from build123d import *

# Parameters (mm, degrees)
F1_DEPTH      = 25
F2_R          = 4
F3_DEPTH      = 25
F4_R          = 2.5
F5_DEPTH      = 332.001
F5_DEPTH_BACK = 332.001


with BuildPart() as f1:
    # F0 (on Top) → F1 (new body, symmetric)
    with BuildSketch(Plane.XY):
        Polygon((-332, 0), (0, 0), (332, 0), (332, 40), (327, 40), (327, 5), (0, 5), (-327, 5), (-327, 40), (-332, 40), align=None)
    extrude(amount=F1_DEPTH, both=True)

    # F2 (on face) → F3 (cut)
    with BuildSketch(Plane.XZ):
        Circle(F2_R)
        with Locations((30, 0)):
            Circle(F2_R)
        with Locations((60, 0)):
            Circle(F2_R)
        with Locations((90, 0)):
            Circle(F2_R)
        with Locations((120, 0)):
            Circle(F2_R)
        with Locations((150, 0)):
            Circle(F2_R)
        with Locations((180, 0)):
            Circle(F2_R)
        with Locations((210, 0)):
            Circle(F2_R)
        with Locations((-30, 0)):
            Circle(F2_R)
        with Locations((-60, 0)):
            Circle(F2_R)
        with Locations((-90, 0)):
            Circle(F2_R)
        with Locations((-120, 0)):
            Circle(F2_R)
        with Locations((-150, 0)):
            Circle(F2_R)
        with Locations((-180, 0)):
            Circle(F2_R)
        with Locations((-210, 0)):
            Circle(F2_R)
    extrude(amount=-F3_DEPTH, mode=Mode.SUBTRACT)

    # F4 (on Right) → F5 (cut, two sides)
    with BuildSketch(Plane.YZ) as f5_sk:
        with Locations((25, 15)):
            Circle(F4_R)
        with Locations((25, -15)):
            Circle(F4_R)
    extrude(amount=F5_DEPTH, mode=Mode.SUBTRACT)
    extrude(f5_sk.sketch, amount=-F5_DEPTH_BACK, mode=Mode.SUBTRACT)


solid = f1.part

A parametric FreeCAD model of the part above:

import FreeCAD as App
import Part
import Sketcher
from FreeCAD import Vector
Q = App.Units.Quantity


def add_polygon(sketch, points):
    """Adds a closed chain of lines whose ends are joined by coincident constraints."""
    first, n = sketch.GeometryCount, len(points)
    for a, b in zip(points, points[1:] + points[:1]):
        sketch.addGeometry(Part.LineSegment(App.Vector(*a, 0), App.Vector(*b, 0)), False)
    for i in range(n):
        sketch.addConstraint(Sketcher.Constraint("Coincident", first + i, 2, first + (i + 1) % n, 1))

doc = App.newDocument("Part")
body = doc.addObject("PartDesign::Body", "Body")

sketch1 = doc.addObject("Sketcher::SketchObject", "Sketch")
body.addObject(sketch1)
sketch1.AttachmentSupport = (doc.XY_Plane, [""])
sketch1.MapMode = "FlatFace"
add_polygon(sketch1, [(-332, 0), (332, 0), (332, 40), (327, 40), (327, 5), (-327, 5), (-327, 40), (-332, 40)])
sketch1.addConstraint(Sketcher.Constraint("Horizontal", 0))
sketch1.addConstraint(Sketcher.Constraint("Vertical", 1))
sketch1.addConstraint(Sketcher.Constraint("Horizontal", 2))
sketch1.addConstraint(Sketcher.Constraint("Vertical", 3))
sketch1.addConstraint(Sketcher.Constraint("Horizontal", 4))
sketch1.addConstraint(Sketcher.Constraint("Vertical", 5))
sketch1.addConstraint(Sketcher.Constraint("Horizontal", 6))
sketch1.addConstraint(Sketcher.Constraint("Vertical", 7))
sketch1.addConstraint(Sketcher.Constraint("Symmetric", 0, 2, 7, 2, -1, 1))
sketch1.addConstraint(Sketcher.Constraint("Symmetric", 2, 2, 5, 2, -2))
sketch1.addConstraint(Sketcher.Constraint("DistanceX", 0, 1, 0, 2, Q("664 mm")))
sketch1.addConstraint(Sketcher.Constraint("DistanceX", 2, 2, 2, 1, Q("5 mm")))
sketch1.addConstraint(Sketcher.Constraint("DistanceY", 1, 1, 1, 2, Q("40 mm")))
sketch1.addConstraint(Sketcher.Constraint("DistanceY", 3, 2, 3, 1, Q("35 mm")))
pad1 = doc.addObject("PartDesign::Pad", "Pad")
body.addObject(pad1)
pad1.Profile = sketch1
pad1.Length = 50
pad1.Midplane = True

sketch2 = doc.addObject("Sketcher::SketchObject", "Sketch001")
body.addObject(sketch2)
sketch2.AttachmentSupport = (doc.XZ_Plane, [""])
sketch2.MapMode = "FlatFace"
sketch2.addGeometry(Part.Circle(Vector(0, 0, 0), Vector(0, 0, 1), 4), False)
sketch2.addGeometry(Part.Circle(Vector(30, 0, 0), Vector(0, 0, 1), 4), False)
sketch2.addGeometry(Part.Circle(Vector(60, 0, 0), Vector(0, 0, 1), 4), False)
sketch2.addGeometry(Part.Circle(Vector(90, 0, 0), Vector(0, 0, 1), 4), False)
sketch2.addGeometry(Part.Circle(Vector(120, 0, 0), Vector(0, 0, 1), 4), False)
sketch2.addGeometry(Part.Circle(Vector(150, 0, 0), Vector(0, 0, 1), 4), False)
sketch2.addGeometry(Part.Circle(Vector(180, 0, 0), Vector(0, 0, 1), 4), False)
sketch2.addGeometry(Part.Circle(Vector(210, 0, 0), Vector(0, 0, 1), 4), False)
sketch2.addGeometry(Part.Circle(Vector(-30, 0, 0), Vector(0, 0, 1), 4), False)
sketch2.addGeometry(Part.Circle(Vector(-60, 0, 0), Vector(0, 0, 1), 4), False)
sketch2.addGeometry(Part.Circle(Vector(-90, 0, 0), Vector(0, 0, 1), 4), False)
sketch2.addGeometry(Part.Circle(Vector(-120, 0, 0), Vector(0, 0, 1), 4), False)
sketch2.addGeometry(Part.Circle(Vector(-150, 0, 0), Vector(0, 0, 1), 4), False)
sketch2.addGeometry(Part.Circle(Vector(-180, 0, 0), Vector(0, 0, 1), 4), False)
sketch2.addGeometry(Part.Circle(Vector(-210, 0, 0), Vector(0, 0, 1), 4), False)
sketch2.addConstraint(Sketcher.Constraint("Coincident", 0, 3, -1, 1))
sketch2.addConstraint(Sketcher.Constraint("Equal", 0, 1))
sketch2.addConstraint(Sketcher.Constraint("Equal", 1, 2))
sketch2.addConstraint(Sketcher.Constraint("Equal", 2, 3))
sketch2.addConstraint(Sketcher.Constraint("Equal", 3, 4))
sketch2.addConstraint(Sketcher.Constraint("Equal", 4, 5))
sketch2.addConstraint(Sketcher.Constraint("Equal", 5, 6))
sketch2.addConstraint(Sketcher.Constraint("Equal", 6, 7))
sketch2.addConstraint(Sketcher.Constraint("Equal", 7, 8))
sketch2.addConstraint(Sketcher.Constraint("Equal", 8, 9))
sketch2.addConstraint(Sketcher.Constraint("Equal", 9, 10))
sketch2.addConstraint(Sketcher.Constraint("Equal", 10, 11))
sketch2.addConstraint(Sketcher.Constraint("Equal", 11, 12))
sketch2.addConstraint(Sketcher.Constraint("Equal", 12, 13))
sketch2.addConstraint(Sketcher.Constraint("Equal", 13, 14))
sketch2.addConstraint(Sketcher.Constraint("Symmetric", 1, 3, 8, 3, -1, 1))
sketch2.addConstraint(Sketcher.Constraint("Symmetric", 2, 3, 9, 3, -1, 1))
sketch2.addConstraint(Sketcher.Constraint("Symmetric", 3, 3, 10, 3, -1, 1))
sketch2.addConstraint(Sketcher.Constraint("Symmetric", 4, 3, 11, 3, -1, 1))
sketch2.addConstraint(Sketcher.Constraint("Symmetric", 5, 3, 12, 3, -1, 1))
sketch2.addConstraint(Sketcher.Constraint("Symmetric", 6, 3, 13, 3, -1, 1))
sketch2.addConstraint(Sketcher.Constraint("Symmetric", 7, 3, 14, 3, -1, 1))
sketch2.addConstraint(Sketcher.Constraint("PointOnObject", 1, 3, -1))
sketch2.addConstraint(Sketcher.Constraint("PointOnObject", 2, 3, -1))
sketch2.addConstraint(Sketcher.Constraint("PointOnObject", 3, 3, -1))
sketch2.addConstraint(Sketcher.Constraint("PointOnObject", 4, 3, -1))
sketch2.addConstraint(Sketcher.Constraint("PointOnObject", 5, 3, -1))
sketch2.addConstraint(Sketcher.Constraint("PointOnObject", 6, 3, -1))
sketch2.addConstraint(Sketcher.Constraint("PointOnObject", 7, 3, -1))
sketch2.addConstraint(Sketcher.Constraint("Diameter", 0, Q("8 mm")))
sketch2.addConstraint(Sketcher.Constraint("DistanceX", -1, 1, 1, 3, Q("30 mm")))
sketch2.addConstraint(Sketcher.Constraint("DistanceX", -1, 1, 2, 3, Q("60 mm")))
sketch2.addConstraint(Sketcher.Constraint("DistanceX", -1, 1, 3, 3, Q("90 mm")))
sketch2.addConstraint(Sketcher.Constraint("DistanceX", -1, 1, 4, 3, Q("120 mm")))
sketch2.addConstraint(Sketcher.Constraint("DistanceX", -1, 1, 5, 3, Q("150 mm")))
sketch2.addConstraint(Sketcher.Constraint("DistanceX", -1, 1, 6, 3, Q("180 mm")))
sketch2.addConstraint(Sketcher.Constraint("DistanceX", -1, 1, 7, 3, Q("210 mm")))
pocket1 = doc.addObject("PartDesign::Pocket", "Pocket")
body.addObject(pocket1)
pocket1.Profile = sketch2
pocket1.Length = 25

sketch3 = doc.addObject("Sketcher::SketchObject", "Sketch002")
body.addObject(sketch3)
sketch3.AttachmentSupport = (doc.YZ_Plane, [""])
sketch3.MapMode = "FlatFace"
sketch3.addGeometry(Part.Circle(Vector(25, 15, 0), Vector(0, 0, 1), 2.5), False)
sketch3.addGeometry(Part.Circle(Vector(25, -15, 0), Vector(0, 0, 1), 2.5), False)
sketch3.addConstraint(Sketcher.Constraint("Equal", 0, 1))
sketch3.addConstraint(Sketcher.Constraint("Symmetric", 0, 3, 1, 3, -1))
sketch3.addConstraint(Sketcher.Constraint("Diameter", 0, Q("5 mm")))
sketch3.addConstraint(Sketcher.Constraint("DistanceX", -1, 1, 0, 3, Q("25 mm")))
sketch3.addConstraint(Sketcher.Constraint("DistanceY", -1, 1, 0, 3, Q("15 mm")))
pocket2 = doc.addObject("PartDesign::Pocket", "Pocket001")
body.addObject(pocket2)
pocket2.Profile = sketch3
pocket2.Type = "ThroughAll"
pocket2.Midplane = True

doc.recompute()
